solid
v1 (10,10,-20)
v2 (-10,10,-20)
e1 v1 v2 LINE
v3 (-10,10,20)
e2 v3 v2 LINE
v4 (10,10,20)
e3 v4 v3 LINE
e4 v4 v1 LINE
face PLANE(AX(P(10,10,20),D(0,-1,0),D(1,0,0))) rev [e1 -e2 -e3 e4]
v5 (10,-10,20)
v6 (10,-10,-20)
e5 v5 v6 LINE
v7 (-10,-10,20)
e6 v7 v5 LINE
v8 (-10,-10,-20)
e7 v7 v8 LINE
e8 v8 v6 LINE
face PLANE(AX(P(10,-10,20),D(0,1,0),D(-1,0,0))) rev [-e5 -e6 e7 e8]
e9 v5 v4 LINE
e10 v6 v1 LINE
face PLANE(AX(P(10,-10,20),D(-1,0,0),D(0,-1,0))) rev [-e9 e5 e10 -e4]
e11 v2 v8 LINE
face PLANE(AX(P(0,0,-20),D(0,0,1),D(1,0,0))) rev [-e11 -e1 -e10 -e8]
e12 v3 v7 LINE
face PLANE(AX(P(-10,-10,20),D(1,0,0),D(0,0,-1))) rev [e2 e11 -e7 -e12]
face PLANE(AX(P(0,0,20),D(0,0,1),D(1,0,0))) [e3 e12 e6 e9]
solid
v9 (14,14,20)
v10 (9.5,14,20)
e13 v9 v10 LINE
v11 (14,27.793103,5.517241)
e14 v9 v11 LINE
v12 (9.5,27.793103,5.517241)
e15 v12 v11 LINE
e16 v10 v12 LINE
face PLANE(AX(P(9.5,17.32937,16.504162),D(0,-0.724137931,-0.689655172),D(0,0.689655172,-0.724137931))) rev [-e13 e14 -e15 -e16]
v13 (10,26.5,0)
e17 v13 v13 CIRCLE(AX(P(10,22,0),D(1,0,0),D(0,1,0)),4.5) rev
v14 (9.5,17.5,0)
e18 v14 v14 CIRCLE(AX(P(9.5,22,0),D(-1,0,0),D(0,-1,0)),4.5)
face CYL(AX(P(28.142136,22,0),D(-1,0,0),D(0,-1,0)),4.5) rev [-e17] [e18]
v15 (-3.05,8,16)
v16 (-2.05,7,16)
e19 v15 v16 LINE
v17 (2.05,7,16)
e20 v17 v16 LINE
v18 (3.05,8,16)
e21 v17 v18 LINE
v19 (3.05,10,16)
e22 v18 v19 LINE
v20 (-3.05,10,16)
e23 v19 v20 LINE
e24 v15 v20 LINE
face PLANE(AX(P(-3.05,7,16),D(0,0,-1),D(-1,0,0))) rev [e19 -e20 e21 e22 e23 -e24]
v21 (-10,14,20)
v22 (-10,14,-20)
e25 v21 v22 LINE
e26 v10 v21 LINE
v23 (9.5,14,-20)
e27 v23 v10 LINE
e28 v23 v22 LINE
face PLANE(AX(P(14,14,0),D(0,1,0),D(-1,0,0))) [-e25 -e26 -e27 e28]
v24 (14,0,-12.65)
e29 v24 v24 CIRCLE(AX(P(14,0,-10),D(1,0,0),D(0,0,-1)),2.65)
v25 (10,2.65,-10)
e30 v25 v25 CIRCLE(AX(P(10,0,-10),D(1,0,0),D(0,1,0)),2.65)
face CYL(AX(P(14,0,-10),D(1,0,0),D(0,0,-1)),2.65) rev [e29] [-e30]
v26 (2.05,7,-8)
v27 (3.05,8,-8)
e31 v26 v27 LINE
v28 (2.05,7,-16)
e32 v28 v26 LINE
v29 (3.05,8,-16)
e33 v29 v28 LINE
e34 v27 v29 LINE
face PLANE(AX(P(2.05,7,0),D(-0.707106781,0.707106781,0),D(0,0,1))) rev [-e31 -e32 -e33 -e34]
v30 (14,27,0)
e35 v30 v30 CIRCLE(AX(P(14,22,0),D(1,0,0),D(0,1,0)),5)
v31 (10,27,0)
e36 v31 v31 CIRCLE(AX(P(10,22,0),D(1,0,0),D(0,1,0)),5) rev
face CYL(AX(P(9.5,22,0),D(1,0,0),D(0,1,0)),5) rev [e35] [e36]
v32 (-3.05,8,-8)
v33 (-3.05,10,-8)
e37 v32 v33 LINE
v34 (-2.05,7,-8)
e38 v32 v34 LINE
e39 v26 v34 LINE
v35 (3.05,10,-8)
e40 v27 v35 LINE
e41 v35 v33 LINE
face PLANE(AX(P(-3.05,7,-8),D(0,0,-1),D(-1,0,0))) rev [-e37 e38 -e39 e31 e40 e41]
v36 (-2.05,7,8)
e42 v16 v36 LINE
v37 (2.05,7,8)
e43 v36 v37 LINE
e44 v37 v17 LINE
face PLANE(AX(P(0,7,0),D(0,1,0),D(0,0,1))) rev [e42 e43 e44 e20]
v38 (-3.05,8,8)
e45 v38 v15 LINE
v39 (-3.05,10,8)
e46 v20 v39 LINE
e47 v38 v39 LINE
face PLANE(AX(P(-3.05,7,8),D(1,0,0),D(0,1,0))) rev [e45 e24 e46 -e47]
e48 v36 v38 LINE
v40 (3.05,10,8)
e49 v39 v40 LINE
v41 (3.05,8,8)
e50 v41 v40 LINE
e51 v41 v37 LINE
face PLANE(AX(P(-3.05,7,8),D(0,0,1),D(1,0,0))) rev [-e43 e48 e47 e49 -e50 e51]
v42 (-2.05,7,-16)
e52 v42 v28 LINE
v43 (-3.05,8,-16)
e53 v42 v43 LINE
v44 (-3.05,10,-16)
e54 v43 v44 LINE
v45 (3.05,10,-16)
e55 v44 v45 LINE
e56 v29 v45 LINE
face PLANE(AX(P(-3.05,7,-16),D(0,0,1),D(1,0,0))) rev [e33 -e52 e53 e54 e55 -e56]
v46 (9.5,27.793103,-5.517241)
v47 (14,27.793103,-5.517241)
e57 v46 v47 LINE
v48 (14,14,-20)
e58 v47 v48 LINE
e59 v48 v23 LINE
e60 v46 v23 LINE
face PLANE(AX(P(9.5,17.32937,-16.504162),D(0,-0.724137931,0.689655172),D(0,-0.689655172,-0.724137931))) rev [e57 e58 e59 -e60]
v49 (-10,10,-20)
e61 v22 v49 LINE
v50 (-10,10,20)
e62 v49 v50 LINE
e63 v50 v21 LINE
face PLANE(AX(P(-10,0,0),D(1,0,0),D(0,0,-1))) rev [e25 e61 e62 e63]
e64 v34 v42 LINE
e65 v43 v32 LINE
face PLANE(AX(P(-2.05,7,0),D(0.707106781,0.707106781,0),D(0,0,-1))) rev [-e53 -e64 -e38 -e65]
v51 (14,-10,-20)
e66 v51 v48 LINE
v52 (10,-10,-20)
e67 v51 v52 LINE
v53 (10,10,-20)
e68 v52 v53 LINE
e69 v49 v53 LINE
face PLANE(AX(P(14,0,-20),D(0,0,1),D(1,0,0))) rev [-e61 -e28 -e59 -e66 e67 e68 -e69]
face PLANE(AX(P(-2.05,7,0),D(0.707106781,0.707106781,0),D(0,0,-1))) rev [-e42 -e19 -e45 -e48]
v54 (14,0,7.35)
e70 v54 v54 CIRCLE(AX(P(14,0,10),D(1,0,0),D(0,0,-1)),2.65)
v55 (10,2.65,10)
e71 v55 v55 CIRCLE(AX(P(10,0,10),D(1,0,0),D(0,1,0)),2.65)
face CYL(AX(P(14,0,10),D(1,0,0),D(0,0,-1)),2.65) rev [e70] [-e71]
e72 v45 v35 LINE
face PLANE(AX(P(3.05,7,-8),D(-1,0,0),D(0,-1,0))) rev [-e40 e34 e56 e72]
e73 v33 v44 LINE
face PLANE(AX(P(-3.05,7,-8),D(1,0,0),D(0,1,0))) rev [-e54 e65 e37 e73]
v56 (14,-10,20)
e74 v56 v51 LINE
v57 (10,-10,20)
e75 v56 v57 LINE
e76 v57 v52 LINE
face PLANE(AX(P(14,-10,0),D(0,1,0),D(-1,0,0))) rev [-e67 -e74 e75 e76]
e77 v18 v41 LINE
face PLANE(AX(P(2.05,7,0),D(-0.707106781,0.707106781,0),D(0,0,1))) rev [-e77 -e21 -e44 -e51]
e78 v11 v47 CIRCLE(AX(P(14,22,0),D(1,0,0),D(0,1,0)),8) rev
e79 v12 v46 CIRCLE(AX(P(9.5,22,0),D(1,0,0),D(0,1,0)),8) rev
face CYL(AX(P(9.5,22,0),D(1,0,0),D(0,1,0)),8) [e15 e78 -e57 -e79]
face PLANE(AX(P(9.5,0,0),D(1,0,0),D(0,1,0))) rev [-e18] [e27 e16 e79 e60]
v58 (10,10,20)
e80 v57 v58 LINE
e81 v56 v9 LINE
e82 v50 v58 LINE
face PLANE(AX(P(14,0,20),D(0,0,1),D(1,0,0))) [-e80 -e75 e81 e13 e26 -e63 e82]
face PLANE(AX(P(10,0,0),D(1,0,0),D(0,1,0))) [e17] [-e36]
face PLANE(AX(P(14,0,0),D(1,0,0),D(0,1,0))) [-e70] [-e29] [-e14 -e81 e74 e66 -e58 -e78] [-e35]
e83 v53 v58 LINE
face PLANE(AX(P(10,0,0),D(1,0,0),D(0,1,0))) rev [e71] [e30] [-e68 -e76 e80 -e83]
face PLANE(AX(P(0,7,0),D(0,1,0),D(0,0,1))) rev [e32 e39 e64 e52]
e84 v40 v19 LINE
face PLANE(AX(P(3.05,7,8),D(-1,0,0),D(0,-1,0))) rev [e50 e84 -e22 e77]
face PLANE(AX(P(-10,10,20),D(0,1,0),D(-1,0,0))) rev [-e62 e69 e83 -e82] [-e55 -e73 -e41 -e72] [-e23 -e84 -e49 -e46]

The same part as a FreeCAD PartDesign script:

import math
import FreeCAD as App
import Part
import Sketcher

V = App.Vector


def edges_at(feature, points):
    """Names of the edges that pass closest to the given points."""
    edges = feature.Shape.Edges
    near = lambda p: min(range(len(edges)), key=lambda i: edges[i].distToShape(Part.Vertex(*p))[0])
    return sorted({f"Edge{near(p) + 1}" for p in points})

doc = App.newDocument("Part")
body = doc.addObject("PartDesign::Body", "Body")

# Sketch on XY plane
sketch1 = body.newObject("Sketcher::SketchObject", "Sketch")
sketch1.AttachmentSupport = (doc.getObject("XY_Plane"), [""])
sketch1.MapMode = "FlatFace"
sketch1.addGeometry([
    Part.LineSegment(V(-10, 10, 0), V(-10, -10, 0)),
    Part.LineSegment(V(-10, -10, 0), V(10, -10, 0)),
    Part.LineSegment(V(10, -10, 0), V(10, 10, 0)),
    Part.LineSegment(V(10, 10, 0), V(-10, 10, 0)),
], False)
sketch1.addConstraint([
    Sketcher.Constraint("Coincident", 0, 2, 1, 1),
    Sketcher.Constraint("Coincident", 1, 2, 2, 1),
    Sketcher.Constraint("Coincident", 2, 2, 3, 1),
    Sketcher.Constraint("Coincident", 3, 2, 0, 1),
    Sketcher.Constraint("Vertical", 0),
    Sketcher.Constraint("Horizontal", 1),
    Sketcher.Constraint("Vertical", 2),
    Sketcher.Constraint("Horizontal", 3),
    Sketcher.Constraint("Symmetric", 0, 2, 2, 2, -1, 1),
    Sketcher.Constraint("Equal", 3, 0),
    Sketcher.Constraint("DistanceX", 1, 1, 1, 2, 20.0),
])
pad1 = body.newObject("PartDesign::Pad", "Pad")
pad1.Profile = sketch1
pad1.Length = 40
pad1.Midplane = True
body2 = doc.addObject("PartDesign::Body", "Body001")

# Sketch on YZ plane
sketch2 = body2.newObject("Sketcher::SketchObject", "Sketch001")
sketch2.AttachmentSupport = (doc.getObject("YZ_Plane001"), [""])
sketch2.MapMode = "FlatFace"
sketch2.AttachmentOffset = App.Placement(V(0, 0, 10), App.Rotation())
sketch2.addGeometry([
    Part.LineSegment(V(14, 20, 0), V(-10, 20, 0)),
    Part.LineSegment(V(-10, 20, 0), V(-10, -20, 0)),
    Part.LineSegment(V(-10, -20, 0), V(14, -20, 0)),
    Part.LineSegment(V(14, -20, 0), V(14, 20, 0)),
], False)
sketch2.addConstraint([
    Sketcher.Constraint("Coincident", 0, 2, 1, 1),
    Sketcher.Constraint("Coincident", 1, 2, 2, 1),
    Sketcher.Constraint("Coincident", 2, 2, 3, 1),
    Sketcher.Constraint("Coincident", 3, 2, 0, 1),
    Sketcher.Constraint("Horizontal", 0),
    Sketcher.Constraint("Vertical", 1),
    Sketcher.Constraint("Horizontal", 2),
    Sketcher.Constraint("Vertical", 3),
    Sketcher.Constraint("DistanceX", 0, 2, 0, 1, 24.0),
    Sketcher.Constraint("DistanceY", 1, 2, 1, 1, 40.0),
    Sketcher.Constraint("DistanceX", 0, 2, -1, 1, 10.0),
    Sketcher.Constraint("DistanceY", -1, 1, 0, 2, 20.0),
])
pad2 = body2.newObject("PartDesign::Pad", "Pad001")
pad2.Profile = sketch2
pad2.Length = 4

# Sketch on XZ plane
sketch3 = body2.newObject("Sketcher::SketchObject", "Sketch002")
sketch3.AttachmentSupport = (doc.getObject("XZ_Plane001"), [""])
sketch3.MapMode = "FlatFace"
sketch3.addGeometry([
    Part.LineSegment(V(-10, 10, 0), V(14, 10, 0)),
    Part.LineSegment(V(14, 10, 0), V(14, 7.3, 0)),
    Part.LineSegment(V(14, 7.3, 0), V(-10, 7.3, 0)),
    Part.LineSegment(V(-10, 7.3, 0), V(-10, 10, 0)),
], False)
sketch3.addGeometry(Part.LineSegment(V(14, 10, 0), V(-10, 10, 0)), True)  # axis
sketch3.addConstraint([
    Sketcher.Constraint("Coincident", 0, 2, 1, 1),
    Sketcher.Constraint("Coincident", 1, 2, 2, 1),
    Sketcher.Constraint("Coincident", 2, 2, 3, 1),
    Sketcher.Constraint("Coincident", 3, 2, 0, 1),
    Sketcher.Constraint("Horizontal", 0),
    Sketcher.Constraint("Vertical", 1),
    Sketcher.Constraint("Horizontal", 2),
    Sketcher.Constraint("Vertical", 3),
    Sketcher.Constraint("Horizontal", 4),
    Sketcher.Constraint("Coincident", 4, 1, 0, 2),
    Sketcher.Constraint("Vertical", 2, 2, 4, 2),
    Sketcher.Constraint("DistanceX", 0, 1, 0, 2, 24.0),
    Sketcher.Constraint("DistanceX", -1, 1, 0, 2, 14.0),
    Sketcher.Constraint("DistanceY", -1, 1, 0, 2, 10.0),
    Sketcher.Constraint("DistanceY", 1, 2, 1, 1, 2.65),
])
groove = body2.newObject("PartDesign::Groove", "Groove")
groove.Profile = sketch3
groove.ReferenceAxis = (sketch3, ["Axis0"])
groove.Angle = 360
doc.recompute()

linearpattern = body2.newObject("PartDesign::LinearPattern", "LinearPattern")
linearpattern.Originals = [groove]
linearpattern.Direction = (doc.getObject("Z_Axis001"), [""])
linearpattern.Mode = "offset"
linearpattern.Offset = 20
linearpattern.Occurrences = 2
linearpattern.Reversed = True
body2.Tip = linearpattern

# Sketch on YZ plane
sketch4 = body2.newObject("Sketcher::SketchObject", "Sketch003")
sketch4.AttachmentSupport = (doc.getObject("YZ_Plane001"), [""])
sketch4.MapMode = "FlatFace"
sketch4.AttachmentOffset = App.Placement(V(0, 0, 10), App.Rotation())
sketch4.addGeometry([
    Part.LineSegment(V(14, -20, 0), V(10, -20, 0)),
    Part.LineSegment(V(10, -20, 0), V(10, 20, 0)),
    Part.LineSegment(V(10, 20, 0), V(14, 20, 0)),
    Part.LineSegment(V(14, 20, 0), V(14, -20, 0)),
], False)
sketch4.addConstraint([
    Sketcher.Constraint("Coincident", 0, 2, 1, 1),
    Sketcher.Constraint("Coincident", 1, 2, 2, 1),
    Sketcher.Constraint("Coincident", 2, 2, 3, 1),
    Sketcher.Constraint("Coincident", 3, 2, 0, 1),
    Sketcher.Constraint("Horizontal", 0),
    Sketcher.Constraint("Vertical", 1),
    Sketcher.Constraint("Horizontal", 2),
    Sketcher.Constraint("Vertical", 3),
    Sketcher.Constraint("DistanceX", 0, 2, 0, 1, 4.0),
    Sketcher.Constraint("DistanceY", 1, 1, 1, 2, 40.0),
    Sketcher.Constraint("DistanceX", -1, 1, 0, 2, 10.0),
    Sketcher.Constraint("DistanceY", 0, 2, -1, 1, 20.0),
])
pad3 = body2.newObject("PartDesign::Pad", "Pad002")
pad3.Profile = sketch4
pad3.Length = 20
pad3.Reversed = True

# Sketch on XZ plane
sketch5 = body2.newObject("Sketcher::SketchObject", "Sketch004")
sketch5.AttachmentSupport = (doc.getObject("XZ_Plane001"), [""])
sketch5.MapMode = "FlatFace"
sketch5.AttachmentOffset = App.Placement(V(0, 0, -10), App.Rotation())
sketch5.addGeometry([
    Part.LineSegment(V(-3, 16, 0), V(-3, 8, 0)),  # 0
    Part.LineSegment(V(-3, 8, 0), V(3, 8, 0)),  # 1
    Part.LineSegment(V(3, 8, 0), V(3, 16, 0)),  # 2
    Part.LineSegment(V(3, 16, 0), V(-3, 16, 0)),  # 3
    Part.LineSegment(V(-3, -8, 0), V(-3, -16, 0)),  # 4
    Part.LineSegment(V(-3, -16, 0), V(3, -16, 0)),  # 5
    Part.LineSegment(V(3, -16, 0), V(3, -8, 0)),  # 6
    Part.LineSegment(V(3, -8, 0), V(-3, -8, 0)),  # 7
], False)
sketch5.addConstraint([
    Sketcher.Constraint("Coincident", 0, 2, 1, 1),
    Sketcher.Constraint("Coincident", 1, 2, 2, 1),
    Sketcher.Constraint("Coincident", 2, 2, 3, 1),
    Sketcher.Constraint("Coincident", 3, 2, 0, 1),
    Sketcher.Constraint("Coincident", 4, 2, 5, 1),
    Sketcher.Constraint("Coincident", 5, 2, 6, 1),
    Sketcher.Constraint("Coincident", 6, 2, 7, 1),
    Sketcher.Constraint("Coincident", 7, 2, 4, 1),
    Sketcher.Constraint("Vertical", 0),
    Sketcher.Constraint("Horizontal", 1),
    Sketcher.Constraint("Vertical", 2),
    Sketcher.Constraint("Horizontal", 3),
    Sketcher.Constraint("Vertical", 4),
    Sketcher.Constraint("Horizontal", 5),
    Sketcher.Constraint("Vertical", 6),
    Sketcher.Constraint("Horizontal", 7),
    Sketcher.Constraint("Symmetric", 2, 2, 4, 2, -1, 1),
    Sketcher.Constraint("Symmetric", 0, 2, 6, 2, -1, 1),
    Sketcher.Constraint("Vertical", 3, 2, 4, 2),
    Sketcher.Constraint("DistanceY", 0, 2, 0, 1, 8.0),
    Sketcher.Constraint("DistanceX", 1, 1, 1, 2, 6.1),
    Sketcher.Constraint("DistanceY", -1, 1, 0, 2, 8.0),
])
pad4 = body2.newObject("PartDesign::Pad", "Pad003")
pad4.Profile = sketch5
pad4.Length = 3
doc.recompute()

chamfer = body2.newObject("PartDesign::Chamfer", "Chamfer")
chamfer.Base = (pad4, edges_at(pad4, [
    (-3.05, 7, 12),
    (3.05, 7, 12),
    (-3.05, 7, -12),
    (3.05, 7, -12),
]))
chamfer.Size = 1

# Sketch on YZ plane
sketch6 = body2.newObject("Sketcher::SketchObject", "Sketch005")
sketch6.AttachmentSupport = (doc.getObject("YZ_Plane001"), [""])
sketch6.MapMode = "FlatFace"
sketch6.AttachmentOffset = App.Placement(V(0, 0, 14), App.Rotation())
sketch6.addGeometry([
    Part.ArcOfCircle(Part.Circle(V(22, 0, 0), V(0, 0, 1), 8), math.radians(-44), math.radians(44)),  # 0
    Part.LineSegment(V(28, 6, 0), V(14, 20, 0)),  # 1
    Part.LineSegment(V(14, 20, 0), V(14, -20, 0)),  # 2
    Part.LineSegment(V(14, -20, 0), V(28, -6, 0)),  # 3
    Part.Circle(V(22, 0, 0), V(0, 0, 1), 5),  # 4
], False)
sketch6.addConstraint([
    Sketcher.Constraint("Tangent", 0, 2, 1, 1),
    Sketcher.Constraint("Coincident", 1, 2, 2, 1),
    Sketcher.Constraint("Coincident", 2, 2, 3, 1),
    Sketcher.Constraint("Tangent", 3, 2, 0, 1),
    Sketcher.Constraint("Vertical", 2),
    Sketcher.Constraint("Coincident", 4, 3, 0, 3),
    Sketcher.Constraint("Symmetric", 0, 2, 3, 2, -1),
    Sketcher.Constraint("Diameter", 4, 10.0),
    Sketcher.Constraint("Radius", 0, 8.0),
    Sketcher.Constraint("DistanceY", 2, 2, 2, 1, 40.0),
    Sketcher.Constraint("Distance", 1, 20.0),
    Sketcher.Constraint("DistanceX", -1, 1, 0, 3, 22.0),
])
pad5 = body2.newObject("PartDesign::Pad", "Pad004")
pad5.Profile = sketch6
pad5.Length = 4.5
pad5.Reversed = True

# Sketch on YZ plane
sketch7 = body2.newObject("Sketcher::SketchObject", "Sketch006")
sketch7.AttachmentSupport = (doc.getObject("YZ_Plane001"), [""])
sketch7.MapMode = "FlatFace"
sketch7.AttachmentOffset = App.Placement(V(0, 0, 9.5), App.Rotation())
sketch7.addGeometry([
    Part.Circle(V(22, 0, 0), V(0, 0, 1), 5),
    Part.Circle(V(22, 0, 0), V(0, 0, 1), 4.5),
], False)
sketch7.addConstraint([
    Sketcher.Constraint("Coincident", 1, 3, 0, 3),
    Sketcher.Constraint("PointOnObject", 0, 3, -1),
    Sketcher.Constraint("Diameter", 0, 10.0),
    Sketcher.Constraint("Diameter", 1, 9.0),
    Sketcher.Constraint("DistanceX", -1, 1, 0, 3, 22.0),
])
pad6 = body2.newObject("PartDesign::Pad", "Pad005")
pad6.Profile = sketch7
pad6.Length = 0.5

doc.recompute()
